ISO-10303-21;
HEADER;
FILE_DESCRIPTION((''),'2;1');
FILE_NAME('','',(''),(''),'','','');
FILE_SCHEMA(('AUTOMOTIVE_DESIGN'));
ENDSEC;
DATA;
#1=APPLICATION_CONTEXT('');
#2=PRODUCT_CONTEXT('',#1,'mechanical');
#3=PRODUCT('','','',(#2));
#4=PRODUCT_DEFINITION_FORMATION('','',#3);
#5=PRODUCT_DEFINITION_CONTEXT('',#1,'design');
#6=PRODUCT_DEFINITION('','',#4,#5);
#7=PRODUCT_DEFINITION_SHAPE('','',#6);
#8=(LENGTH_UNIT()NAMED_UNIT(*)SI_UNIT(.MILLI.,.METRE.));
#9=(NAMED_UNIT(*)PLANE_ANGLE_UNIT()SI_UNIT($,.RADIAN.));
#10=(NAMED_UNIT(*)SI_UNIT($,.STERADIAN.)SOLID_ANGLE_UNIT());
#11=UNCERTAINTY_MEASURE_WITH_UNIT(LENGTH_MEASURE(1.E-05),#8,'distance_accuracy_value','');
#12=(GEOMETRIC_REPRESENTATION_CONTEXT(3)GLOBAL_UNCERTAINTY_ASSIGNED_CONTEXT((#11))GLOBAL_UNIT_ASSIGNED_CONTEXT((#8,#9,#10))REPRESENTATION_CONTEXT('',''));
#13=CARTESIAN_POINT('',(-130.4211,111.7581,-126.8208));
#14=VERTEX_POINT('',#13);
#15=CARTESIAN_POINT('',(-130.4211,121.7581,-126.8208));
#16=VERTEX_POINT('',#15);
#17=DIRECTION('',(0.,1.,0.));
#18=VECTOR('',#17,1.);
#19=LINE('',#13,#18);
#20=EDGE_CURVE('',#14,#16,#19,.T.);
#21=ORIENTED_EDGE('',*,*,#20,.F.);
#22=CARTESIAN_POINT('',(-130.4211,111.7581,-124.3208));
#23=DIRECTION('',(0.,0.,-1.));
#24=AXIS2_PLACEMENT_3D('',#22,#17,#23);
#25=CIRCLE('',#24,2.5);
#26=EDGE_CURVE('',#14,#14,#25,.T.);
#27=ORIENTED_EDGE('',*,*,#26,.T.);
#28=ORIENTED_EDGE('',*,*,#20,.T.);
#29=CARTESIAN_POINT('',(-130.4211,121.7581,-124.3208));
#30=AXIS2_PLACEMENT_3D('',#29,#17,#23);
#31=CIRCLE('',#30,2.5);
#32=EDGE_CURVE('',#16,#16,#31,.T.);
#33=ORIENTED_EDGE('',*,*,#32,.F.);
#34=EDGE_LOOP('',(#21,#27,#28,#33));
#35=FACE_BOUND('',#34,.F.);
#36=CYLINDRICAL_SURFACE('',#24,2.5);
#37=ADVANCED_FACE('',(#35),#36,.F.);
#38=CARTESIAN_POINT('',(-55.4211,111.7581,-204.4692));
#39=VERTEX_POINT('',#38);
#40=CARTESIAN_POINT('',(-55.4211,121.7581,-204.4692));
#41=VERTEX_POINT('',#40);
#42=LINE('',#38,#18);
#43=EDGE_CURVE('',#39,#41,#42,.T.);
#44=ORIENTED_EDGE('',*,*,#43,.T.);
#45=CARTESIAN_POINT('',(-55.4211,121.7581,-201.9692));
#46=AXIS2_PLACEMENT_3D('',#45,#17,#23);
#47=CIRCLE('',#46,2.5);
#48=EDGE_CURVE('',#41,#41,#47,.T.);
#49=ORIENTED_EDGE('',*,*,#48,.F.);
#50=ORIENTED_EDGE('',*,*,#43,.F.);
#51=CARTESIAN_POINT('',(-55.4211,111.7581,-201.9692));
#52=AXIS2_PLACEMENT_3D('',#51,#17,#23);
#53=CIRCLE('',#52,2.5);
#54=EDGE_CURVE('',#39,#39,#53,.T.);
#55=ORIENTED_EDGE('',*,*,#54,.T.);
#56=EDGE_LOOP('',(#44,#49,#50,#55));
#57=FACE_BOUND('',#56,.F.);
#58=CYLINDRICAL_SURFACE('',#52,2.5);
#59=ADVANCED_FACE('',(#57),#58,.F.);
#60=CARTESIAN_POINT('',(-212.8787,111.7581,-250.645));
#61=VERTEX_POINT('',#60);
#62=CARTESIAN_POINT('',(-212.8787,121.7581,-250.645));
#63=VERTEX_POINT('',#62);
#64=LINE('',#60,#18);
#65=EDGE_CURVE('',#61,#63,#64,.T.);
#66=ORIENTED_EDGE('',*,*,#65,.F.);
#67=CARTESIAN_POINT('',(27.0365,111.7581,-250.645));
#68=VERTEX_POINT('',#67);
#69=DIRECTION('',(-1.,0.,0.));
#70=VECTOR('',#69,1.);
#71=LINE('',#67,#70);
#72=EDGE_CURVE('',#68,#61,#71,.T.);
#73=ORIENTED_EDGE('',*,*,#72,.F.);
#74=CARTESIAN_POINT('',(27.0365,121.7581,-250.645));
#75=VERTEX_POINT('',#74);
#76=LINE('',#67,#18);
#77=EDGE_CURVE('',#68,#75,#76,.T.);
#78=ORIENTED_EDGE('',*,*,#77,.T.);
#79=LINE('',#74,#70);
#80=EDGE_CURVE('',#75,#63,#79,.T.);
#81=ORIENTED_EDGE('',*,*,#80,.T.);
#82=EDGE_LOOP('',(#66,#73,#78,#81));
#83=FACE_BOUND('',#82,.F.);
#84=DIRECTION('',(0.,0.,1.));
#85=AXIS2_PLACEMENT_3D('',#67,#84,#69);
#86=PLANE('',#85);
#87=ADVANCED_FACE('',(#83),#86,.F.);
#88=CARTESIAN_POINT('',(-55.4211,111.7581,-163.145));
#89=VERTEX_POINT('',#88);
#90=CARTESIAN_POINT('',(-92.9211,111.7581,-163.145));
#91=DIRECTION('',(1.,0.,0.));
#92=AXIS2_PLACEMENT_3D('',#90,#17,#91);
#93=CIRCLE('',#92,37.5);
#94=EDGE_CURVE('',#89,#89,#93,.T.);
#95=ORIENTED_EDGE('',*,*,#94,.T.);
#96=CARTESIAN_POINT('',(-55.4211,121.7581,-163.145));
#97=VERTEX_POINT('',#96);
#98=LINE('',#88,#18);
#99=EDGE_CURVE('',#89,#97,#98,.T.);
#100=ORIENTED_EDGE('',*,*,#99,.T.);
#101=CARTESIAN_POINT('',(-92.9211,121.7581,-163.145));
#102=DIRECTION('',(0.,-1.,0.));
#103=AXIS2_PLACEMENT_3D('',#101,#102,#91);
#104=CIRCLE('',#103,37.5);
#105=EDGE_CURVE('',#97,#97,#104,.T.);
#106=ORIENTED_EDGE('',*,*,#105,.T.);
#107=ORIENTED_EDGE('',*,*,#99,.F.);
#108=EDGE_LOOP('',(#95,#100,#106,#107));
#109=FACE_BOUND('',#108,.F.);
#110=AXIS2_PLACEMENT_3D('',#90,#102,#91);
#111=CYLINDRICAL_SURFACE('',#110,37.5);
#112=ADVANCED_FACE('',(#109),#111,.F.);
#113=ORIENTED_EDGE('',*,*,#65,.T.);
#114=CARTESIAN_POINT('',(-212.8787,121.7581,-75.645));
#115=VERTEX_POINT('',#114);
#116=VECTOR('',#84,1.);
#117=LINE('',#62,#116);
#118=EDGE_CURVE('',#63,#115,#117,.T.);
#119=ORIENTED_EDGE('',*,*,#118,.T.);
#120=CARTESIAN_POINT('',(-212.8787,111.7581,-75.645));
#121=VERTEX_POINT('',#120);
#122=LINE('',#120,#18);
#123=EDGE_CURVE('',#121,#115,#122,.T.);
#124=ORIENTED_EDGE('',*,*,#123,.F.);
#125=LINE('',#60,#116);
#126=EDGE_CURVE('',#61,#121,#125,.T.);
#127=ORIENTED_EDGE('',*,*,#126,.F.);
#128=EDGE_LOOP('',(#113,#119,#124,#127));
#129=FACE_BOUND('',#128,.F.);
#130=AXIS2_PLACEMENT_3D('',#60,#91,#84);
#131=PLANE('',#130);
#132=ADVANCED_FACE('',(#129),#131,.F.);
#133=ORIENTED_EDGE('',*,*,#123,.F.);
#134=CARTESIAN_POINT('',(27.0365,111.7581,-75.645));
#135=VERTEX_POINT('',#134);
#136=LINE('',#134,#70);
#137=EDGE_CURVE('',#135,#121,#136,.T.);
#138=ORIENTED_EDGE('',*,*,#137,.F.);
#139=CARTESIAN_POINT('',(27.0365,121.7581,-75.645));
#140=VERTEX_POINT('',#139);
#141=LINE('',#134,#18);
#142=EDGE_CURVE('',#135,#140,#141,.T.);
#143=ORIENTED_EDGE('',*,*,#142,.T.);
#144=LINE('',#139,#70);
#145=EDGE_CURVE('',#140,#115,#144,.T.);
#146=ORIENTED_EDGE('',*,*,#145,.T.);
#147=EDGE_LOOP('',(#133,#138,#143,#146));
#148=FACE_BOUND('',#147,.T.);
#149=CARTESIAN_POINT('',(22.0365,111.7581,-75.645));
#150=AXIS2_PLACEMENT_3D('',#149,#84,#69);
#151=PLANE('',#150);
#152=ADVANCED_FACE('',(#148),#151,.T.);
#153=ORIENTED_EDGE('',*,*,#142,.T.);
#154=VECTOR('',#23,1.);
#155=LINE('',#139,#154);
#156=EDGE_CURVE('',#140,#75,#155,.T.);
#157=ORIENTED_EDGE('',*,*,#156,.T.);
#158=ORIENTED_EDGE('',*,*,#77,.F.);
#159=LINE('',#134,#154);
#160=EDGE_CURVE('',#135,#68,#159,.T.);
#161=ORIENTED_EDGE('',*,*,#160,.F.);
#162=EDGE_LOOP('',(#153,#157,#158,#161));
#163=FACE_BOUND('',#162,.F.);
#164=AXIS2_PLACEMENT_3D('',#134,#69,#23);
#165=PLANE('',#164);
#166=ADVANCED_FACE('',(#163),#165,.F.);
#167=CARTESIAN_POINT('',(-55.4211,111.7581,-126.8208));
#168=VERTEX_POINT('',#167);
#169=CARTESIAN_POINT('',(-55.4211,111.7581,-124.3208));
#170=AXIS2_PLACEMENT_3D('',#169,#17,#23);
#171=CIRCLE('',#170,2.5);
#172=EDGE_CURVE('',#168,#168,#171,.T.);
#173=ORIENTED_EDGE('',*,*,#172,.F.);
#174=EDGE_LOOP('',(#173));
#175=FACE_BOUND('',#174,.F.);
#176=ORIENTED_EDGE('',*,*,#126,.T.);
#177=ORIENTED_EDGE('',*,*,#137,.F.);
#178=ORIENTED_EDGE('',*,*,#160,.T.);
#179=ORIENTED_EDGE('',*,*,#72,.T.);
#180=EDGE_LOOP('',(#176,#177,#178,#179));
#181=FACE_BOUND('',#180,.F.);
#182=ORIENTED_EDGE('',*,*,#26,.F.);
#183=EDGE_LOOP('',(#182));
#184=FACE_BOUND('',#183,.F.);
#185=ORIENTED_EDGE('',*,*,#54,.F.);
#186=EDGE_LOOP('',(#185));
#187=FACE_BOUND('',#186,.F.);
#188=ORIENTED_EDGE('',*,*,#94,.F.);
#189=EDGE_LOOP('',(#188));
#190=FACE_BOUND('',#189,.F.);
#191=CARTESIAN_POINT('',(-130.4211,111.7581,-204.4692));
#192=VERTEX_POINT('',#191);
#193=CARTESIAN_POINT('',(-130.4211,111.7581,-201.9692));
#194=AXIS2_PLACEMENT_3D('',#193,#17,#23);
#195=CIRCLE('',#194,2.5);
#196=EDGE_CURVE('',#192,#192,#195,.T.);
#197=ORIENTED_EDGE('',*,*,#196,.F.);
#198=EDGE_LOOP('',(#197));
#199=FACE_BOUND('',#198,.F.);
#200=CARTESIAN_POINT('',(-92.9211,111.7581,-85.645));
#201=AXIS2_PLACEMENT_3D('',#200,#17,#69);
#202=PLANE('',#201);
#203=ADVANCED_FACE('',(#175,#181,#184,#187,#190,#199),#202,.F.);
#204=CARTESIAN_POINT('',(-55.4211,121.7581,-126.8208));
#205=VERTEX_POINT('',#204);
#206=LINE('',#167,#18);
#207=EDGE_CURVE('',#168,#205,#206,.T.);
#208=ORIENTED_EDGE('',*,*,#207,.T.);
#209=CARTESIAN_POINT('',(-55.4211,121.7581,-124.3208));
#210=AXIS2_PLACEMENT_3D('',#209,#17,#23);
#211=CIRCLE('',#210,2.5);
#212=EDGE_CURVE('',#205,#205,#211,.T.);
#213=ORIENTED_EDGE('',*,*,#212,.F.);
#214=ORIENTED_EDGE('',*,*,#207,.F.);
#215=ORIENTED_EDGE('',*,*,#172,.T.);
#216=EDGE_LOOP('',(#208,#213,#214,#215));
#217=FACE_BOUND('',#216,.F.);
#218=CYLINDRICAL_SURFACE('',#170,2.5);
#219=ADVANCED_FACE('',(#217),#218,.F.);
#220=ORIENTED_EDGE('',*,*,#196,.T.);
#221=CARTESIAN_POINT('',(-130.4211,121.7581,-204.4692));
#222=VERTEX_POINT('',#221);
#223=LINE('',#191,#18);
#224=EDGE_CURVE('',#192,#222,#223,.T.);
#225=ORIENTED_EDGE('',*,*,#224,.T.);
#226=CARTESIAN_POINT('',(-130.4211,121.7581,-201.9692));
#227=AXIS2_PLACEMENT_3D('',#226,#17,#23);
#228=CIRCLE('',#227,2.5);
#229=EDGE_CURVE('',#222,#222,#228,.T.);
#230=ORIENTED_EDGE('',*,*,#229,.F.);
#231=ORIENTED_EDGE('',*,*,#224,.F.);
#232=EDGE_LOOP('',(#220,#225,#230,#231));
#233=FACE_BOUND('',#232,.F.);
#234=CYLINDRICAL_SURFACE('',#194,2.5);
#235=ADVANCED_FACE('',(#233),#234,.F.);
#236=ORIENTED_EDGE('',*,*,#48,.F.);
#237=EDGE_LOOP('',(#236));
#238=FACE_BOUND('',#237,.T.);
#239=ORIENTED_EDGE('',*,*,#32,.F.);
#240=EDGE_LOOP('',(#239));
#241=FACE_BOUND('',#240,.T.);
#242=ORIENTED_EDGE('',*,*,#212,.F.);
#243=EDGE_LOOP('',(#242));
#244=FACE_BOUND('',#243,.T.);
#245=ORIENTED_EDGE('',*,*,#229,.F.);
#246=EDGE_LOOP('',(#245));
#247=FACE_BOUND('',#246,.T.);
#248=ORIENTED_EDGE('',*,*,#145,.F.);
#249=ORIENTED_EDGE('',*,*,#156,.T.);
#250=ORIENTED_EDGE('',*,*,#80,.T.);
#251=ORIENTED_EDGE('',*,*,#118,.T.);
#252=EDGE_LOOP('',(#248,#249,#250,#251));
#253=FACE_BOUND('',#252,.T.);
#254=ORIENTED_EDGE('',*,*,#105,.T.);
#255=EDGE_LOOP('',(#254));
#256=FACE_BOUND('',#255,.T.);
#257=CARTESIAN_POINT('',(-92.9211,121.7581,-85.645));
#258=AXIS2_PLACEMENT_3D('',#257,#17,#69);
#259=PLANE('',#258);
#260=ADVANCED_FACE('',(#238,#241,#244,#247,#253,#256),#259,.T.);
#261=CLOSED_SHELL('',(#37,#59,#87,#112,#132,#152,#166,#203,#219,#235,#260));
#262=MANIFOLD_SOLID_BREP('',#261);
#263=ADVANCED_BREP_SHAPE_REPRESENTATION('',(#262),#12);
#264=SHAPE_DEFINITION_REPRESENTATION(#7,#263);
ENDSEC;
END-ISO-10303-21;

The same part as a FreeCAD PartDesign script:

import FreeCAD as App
import Part
import Sketcher
from FreeCAD import Vector


def add_polygon(sketch, points):
    """Adds a closed chain of lines whose ends are joined by coincident constraints."""
    first, n = sketch.GeometryCount, len(points)
    for a, b in zip(points, points[1:] + points[:1]):
        sketch.addGeometry(Part.LineSegment(App.Vector(*a, 0), App.Vector(*b, 0)), False)
    for i in range(n):
        sketch.addConstraint(Sketcher.Constraint("Coincident", first + i, 2, first + (i + 1) % n, 1))

doc = App.newDocument("Part")
params = doc.addObject("Spreadsheet::Sheet", "Params")
for row, (alias, value) in enumerate([
    ("sketch1_height", "175 mm"),
    ("pad1_length", "10 mm"),
    ("sketch2_diameter", "75 mm"),
    ("sketch3_diameter", "5 mm"),
    ("hole_diameter", "5 mm"),
], start=1):
    params.set(f"A{row}", alias)
    params.set(f"B{row}", "=" + value)
    params.setAlias(f"B{row}", alias)

body = doc.addObject("PartDesign::Body", "Body")

sketch1 = doc.addObject("Sketcher::SketchObject", "Sketch")
body.addObject(sketch1)
sketch1.AttachmentSupport = (doc.XZ_Plane, [""])
sketch1.MapMode = "FlatFace"
sketch1.AttachmentOffset = App.Placement(Vector(0, 0, -111.7581), App.Rotation())
add_polygon(sketch1, [(27.0365, -75.645), (27.0365, -250.645), (-212.8787, -250.645), (-212.8787, -75.645)])
sketch1.addConstraint([
    Sketcher.Constraint("Vertical", 0),
    Sketcher.Constraint("Horizontal", 1),
    Sketcher.Constraint("Vertical", 2),
    Sketcher.Constraint("Horizontal", 3),
    Sketcher.Constraint("DistanceY", 0, 2, 0, 1, 175.0),
    Sketcher.Constraint("DistanceX", 1, 2, 1, 1, 239.9152),
    Sketcher.Constraint("DistanceY", 0, 2, -1, 1, 250.645),
    Sketcher.Constraint("DistanceX", -1, 1, 0, 2, 27.0365),
])
sketch1.setExpression("Constraints[8]", "Params.sketch1_height")
pad1 = doc.addObject("PartDesign::Pad", "Pad")
body.addObject(pad1)
pad1.Profile = sketch1
pad1.setExpression("Length", "Params.pad1_length")
pad1.Reversed = True

sketch2 = doc.addObject("Sketcher::SketchObject", "Sketch001")
body.addObject(sketch2)
sketch2.AttachmentSupport = (doc.XZ_Plane, [""])
sketch2.MapMode = "FlatFace"
sketch2.AttachmentOffset = App.Placement(Vector(0, 0, -111.7581), App.Rotation())
sketch2.addGeometry(Part.Circle(Vector(-92.9211, -163.145, 0), Vector(0, 0, 1), 37.5), False)
sketch2.addConstraint([
    Sketcher.Constraint("Diameter", 0, 75.0),
    Sketcher.Constraint("DistanceX", 0, 3, -1, 1, 92.921),
    Sketcher.Constraint("DistanceY", 0, 3, -1, 1, 163.145),
])
sketch2.setExpression("Constraints[0]", "Params.sketch2_diameter")
pocket1 = doc.addObject("PartDesign::Pocket", "Pocket")
body.addObject(pocket1)
pocket1.Profile = sketch2
pocket1.Type = "ThroughAll"

sketch3 = doc.addObject("Sketcher::SketchObject", "Sketch002")
body.addObject(sketch3)
sketch3.AttachmentSupport = (doc.XZ_Plane, [""])
sketch3.MapMode = "FlatFace"
sketch3.AttachmentOffset = App.Placement(Vector(0, 0, -111.7581), App.Rotation())
sketch3.addGeometry([
    Part.Circle(Vector(-130.4211, -124.3208, 0), Vector(0, 0, 1), 2.5),
    Part.Circle(Vector(-55.4211, -124.3208, 0), Vector(0, 0, 1), 2.5),
    Part.Circle(Vector(-55.4211, -201.9692, 0), Vector(0, 0, 1), 2.5),
    Part.Circle(Vector(-130.4211, -201.9692, 0), Vector(0, 0, 1), 2.5),
], False)
sketch3.addConstraint([
    Sketcher.Constraint("Equal", 0, 1),
    Sketcher.Constraint("Equal", 1, 2),
    Sketcher.Constraint("Equal", 2, 3),
    Sketcher.Constraint("Horizontal", 0, 3, 1, 3),
    Sketcher.Constraint("Horizontal", 2, 3, 3, 3),
    Sketcher.Constraint("Vertical", 1, 3, 2, 3),
    Sketcher.Constraint("Vertical", 0, 3, 3, 3),
    Sketcher.Constraint("Diameter", 0, 5.0),
    Sketcher.Constraint("DistanceX", 0, 3, 1, 3, 75.0),
    Sketcher.Constraint("DistanceX", 0, 3, -1, 1, 130.421),
    Sketcher.Constraint("DistanceY", 0, 3, -1, 1, 124.3208),
    Sketcher.Constraint("DistanceY", 2, 3, -1, 1, 201.9692),
])
sketch3.setExpression("Constraints[7]", "Params.sketch3_diameter")
doc.recompute()
hole = doc.addObject("PartDesign::Hole", "Hole")
body.addObject(hole)
hole.Profile = sketch3
hole.ThreadType = "None"
hole.setExpression("Diameter", "Params.hole_diameter")
hole.DepthType = "ThroughAll"

doc.recompute()
